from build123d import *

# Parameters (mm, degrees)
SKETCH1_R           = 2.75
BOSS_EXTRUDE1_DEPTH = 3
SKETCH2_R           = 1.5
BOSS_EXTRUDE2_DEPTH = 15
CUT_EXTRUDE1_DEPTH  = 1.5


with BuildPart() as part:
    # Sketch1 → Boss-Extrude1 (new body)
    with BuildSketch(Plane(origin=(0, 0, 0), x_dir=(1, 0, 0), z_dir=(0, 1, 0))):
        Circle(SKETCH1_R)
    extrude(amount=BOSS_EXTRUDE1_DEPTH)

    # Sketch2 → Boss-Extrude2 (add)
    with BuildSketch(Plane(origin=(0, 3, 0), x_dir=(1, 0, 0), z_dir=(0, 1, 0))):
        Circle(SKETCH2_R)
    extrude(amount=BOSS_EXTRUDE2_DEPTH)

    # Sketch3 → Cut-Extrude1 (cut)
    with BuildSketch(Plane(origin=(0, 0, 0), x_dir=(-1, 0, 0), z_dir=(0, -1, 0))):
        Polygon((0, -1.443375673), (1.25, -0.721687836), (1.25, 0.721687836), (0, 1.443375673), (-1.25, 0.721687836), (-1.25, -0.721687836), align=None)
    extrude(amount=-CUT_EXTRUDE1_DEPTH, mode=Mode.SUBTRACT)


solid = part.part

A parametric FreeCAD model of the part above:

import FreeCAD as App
import Part
import Sketcher
Q = App.Units.Quantity

doc = App.newDocument("Part")
body = doc.addObject("PartDesign::Body", "Body")

# Sketch on XZ plane
sketch1 = body.newObject("Sketcher::SketchObject", "Sketch")
sketch1.AttachmentSupport = (doc.getObject("XZ_Plane"), [""])
sketch1.MapMode = "FlatFace"
sketch1.addGeometry(Part.Circle(App.Vector(0, 0, 0), App.Vector(0, 0, 1), 2.8), False)
sketch1.addConstraint(Sketcher.Constraint("Coincident", 0, 3, -1, 1))
sketch1.addConstraint(Sketcher.Constraint("Diameter", 0, 5.5))
pad1 = body.newObject("PartDesign::Pad", "Pad")
pad1.Profile = sketch1
pad1.Length = 3
pad1.Reversed = True

# Sketch on XZ plane
sketch2 = body.newObject("Sketcher::SketchObject", "Sketch001")
sketch2.AttachmentSupport = (doc.getObject("XZ_Plane"), [""])
sketch2.MapMode = "FlatFace"
sketch2.AttachmentOffset = App.Placement(App.Vector(0, 0, -3), App.Rotation())
sketch2.addGeometry(Part.Circle(App.Vector(0, 0, 0), App.Vector(0, 0, 1), 1.5), False)
sketch2.addConstraint(Sketcher.Constraint("Coincident", 0, 3, -1, 1))
sketch2.addConstraint(Sketcher.Constraint("Diameter", 0, 3.0))
pad2 = body.newObject("PartDesign::Pad", "Pad001")
pad2.Profile = sketch2
pad2.Length = 15
pad2.Reversed = True

# Sketch on XZ plane
sketch3 = body.newObject("Sketcher::SketchObject", "Sketch002")
sketch3.AttachmentSupport = (doc.getObject("XZ_Plane"), [""])
sketch3.MapMode = "FlatFace"
sketch3.addGeometry(Part.LineSegment(App.Vector(0, 1.4, 0), App.Vector(-1.2, 0.7, 0)), False)
sketch3.addGeometry(Part.LineSegment(App.Vector(-1.2, 0.7, 0), App.Vector(-1.2, -0.7, 0)), False)
sketch3.addGeometry(Part.LineSegment(App.Vector(-1.2, -0.7, 0), App.Vector(0, -1.4, 0)), False)
sketch3.addGeometry(Part.LineSegment(App.Vector(0, -1.4, 0), App.Vector(1.2, -0.7, 0)), False)
sketch3.addGeometry(Part.LineSegment(App.Vector(1.2, -0.7, 0), App.Vector(1.2, 0.7, 0)), False)
sketch3.addGeometry(Part.LineSegment(App.Vector(1.2, 0.7, 0), App.Vector(0, 1.4, 0)), False)
sketch3.addConstraint(Sketcher.Constraint("Coincident", 0, 2, 1, 1))
sketch3.addConstraint(Sketcher.Constraint("Coincident", 1, 2, 2, 1))
sketch3.addConstraint(Sketcher.Constraint("Coincident", 2, 2, 3, 1))
sketch3.addConstraint(Sketcher.Constraint("Coincident", 3, 2, 4, 1))
sketch3.addConstraint(Sketcher.Constraint("Coincident", 4, 2, 5, 1))
sketch3.addConstraint(Sketcher.Constraint("Coincident", 5, 2, 0, 1))
sketch3.addConstraint(Sketcher.Constraint("Vertical", 1))
sketch3.addConstraint(Sketcher.Constraint("Vertical", 4))
sketch3.addConstraint(Sketcher.Constraint("Symmetric", 0, 2, 3, 2, -1, 1))
sketch3.addConstraint(Sketcher.Constraint("Symmetric", 2, 2, 5, 2, -1, 1))
sketch3.addConstraint(Sketcher.Constraint("PointOnObject", 2, 2, -2))
sketch3.addConstraint(Sketcher.Constraint("Parallel", 2, 5))
sketch3.addConstraint(Sketcher.Constraint("Horizontal", 1, 2, 3, 2))
sketch3.addConstraint(Sketcher.Constraint("Angle", 0, Q("-150 deg")))
sketch3.addConstraint(Sketcher.Constraint("DistanceX", 1, 2, 3, 2, 2.5))
sketch3.addConstraint(Sketcher.Constraint("DistanceY", 1, 2, 1, 1, 1.443376))
pocket1 = body.newObject("PartDesign::Pocket", "Pocket")
pocket1.Profile = sketch3
pocket1.Length = 1.5

doc.recompute()
